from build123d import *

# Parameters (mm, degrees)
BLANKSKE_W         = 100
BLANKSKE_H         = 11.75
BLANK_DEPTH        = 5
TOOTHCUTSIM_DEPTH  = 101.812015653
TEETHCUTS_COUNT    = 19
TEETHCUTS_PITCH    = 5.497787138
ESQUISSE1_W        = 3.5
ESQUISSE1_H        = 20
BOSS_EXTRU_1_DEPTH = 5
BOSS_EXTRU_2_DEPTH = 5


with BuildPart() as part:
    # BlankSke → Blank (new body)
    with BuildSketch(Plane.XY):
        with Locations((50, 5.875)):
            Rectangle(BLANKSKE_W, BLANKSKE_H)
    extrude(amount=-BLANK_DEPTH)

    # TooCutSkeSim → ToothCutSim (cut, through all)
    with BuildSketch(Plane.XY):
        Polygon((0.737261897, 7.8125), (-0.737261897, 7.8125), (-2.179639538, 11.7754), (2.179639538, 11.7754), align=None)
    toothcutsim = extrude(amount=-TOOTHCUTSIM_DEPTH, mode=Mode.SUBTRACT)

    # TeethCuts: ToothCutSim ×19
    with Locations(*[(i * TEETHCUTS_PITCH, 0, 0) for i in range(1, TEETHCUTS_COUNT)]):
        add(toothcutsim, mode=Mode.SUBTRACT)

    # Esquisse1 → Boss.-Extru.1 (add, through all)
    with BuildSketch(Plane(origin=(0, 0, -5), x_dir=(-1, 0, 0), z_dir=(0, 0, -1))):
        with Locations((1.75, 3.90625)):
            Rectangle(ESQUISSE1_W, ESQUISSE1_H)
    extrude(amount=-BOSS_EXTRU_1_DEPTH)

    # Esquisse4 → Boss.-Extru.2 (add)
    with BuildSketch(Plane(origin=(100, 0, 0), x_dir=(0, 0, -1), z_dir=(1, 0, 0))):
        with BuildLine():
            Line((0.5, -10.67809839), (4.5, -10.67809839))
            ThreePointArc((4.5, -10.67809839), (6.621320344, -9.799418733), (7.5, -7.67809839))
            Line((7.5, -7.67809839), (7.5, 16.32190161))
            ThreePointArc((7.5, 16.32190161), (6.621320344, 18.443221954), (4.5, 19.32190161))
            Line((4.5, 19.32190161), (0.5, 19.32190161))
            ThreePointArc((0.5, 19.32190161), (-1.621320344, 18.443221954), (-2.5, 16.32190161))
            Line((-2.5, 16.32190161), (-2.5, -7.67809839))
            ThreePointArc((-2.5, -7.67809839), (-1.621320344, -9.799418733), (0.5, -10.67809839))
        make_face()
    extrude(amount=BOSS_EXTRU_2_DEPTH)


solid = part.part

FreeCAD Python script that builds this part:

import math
import FreeCAD as App
import Part
import Sketcher

V = App.Vector
Q = App.Units.Quantity

doc = App.newDocument("Part")
body = doc.addObject("PartDesign::Body", "Body")

# Sketch on XY plane
sketch1 = body.newObject("Sketcher::SketchObject", "Sketch")
sketch1.AttachmentSupport = (doc.getObject("XY_Plane"), [""])
sketch1.MapMode = "FlatFace"
sketch1.addGeometry(Part.LineSegment(V(0, 12, 0), V(0, 0, 0)), False)
sketch1.addGeometry(Part.LineSegment(V(0, 0, 0), V(100, 0, 0)), False)
sketch1.addGeometry(Part.LineSegment(V(100, 0, 0), V(100, 12, 0)), False)
sketch1.addGeometry(Part.LineSegment(V(100, 12, 0), V(0, 12, 0)), False)
sketch1.addConstraint(Sketcher.Constraint("Coincident", 0, 2, 1, 1))
sketch1.addConstraint(Sketcher.Constraint("Coincident", 1, 2, 2, 1))
sketch1.addConstraint(Sketcher.Constraint("Coincident", 2, 2, 3, 1))
sketch1.addConstraint(Sketcher.Constraint("Coincident", 3, 2, 0, 1))
sketch1.addConstraint(Sketcher.Constraint("Vertical", 0))
sketch1.addConstraint(Sketcher.Constraint("Horizontal", 1))
sketch1.addConstraint(Sketcher.Constraint("Vertical", 2))
sketch1.addConstraint(Sketcher.Constraint("Horizontal", 3))
sketch1.addConstraint(Sketcher.Constraint("Coincident", 0, 2, -1, 1))
sketch1.addConstraint(Sketcher.Constraint("DistanceX", 1, 1, 1, 2, Q("100 mm")))
sketch1.addConstraint(Sketcher.Constraint("DistanceY", 0, 2, 0, 1, Q("11.75 mm")))
pad1 = body.newObject("PartDesign::Pad", "Pad")
pad1.Profile = sketch1
pad1.Length = 5
pad1.Reversed = True

# Sketch on XY plane
sketch2 = body.newObject("Sketcher::SketchObject", "Sketch001")
sketch2.AttachmentSupport = (doc.getObject("XY_Plane"), [""])
sketch2.MapMode = "FlatFace"
sketch2.addGeometry(Part.LineSegment(V(-0.7, 7.8, 0), V(0.7, 7.8, 0)), False)
sketch2.addGeometry(Part.LineSegment(V(0.7, 7.8, 0), V(2.2, 11.8, 0)), False)
sketch2.addGeometry(Part.LineSegment(V(2.2, 11.8, 0), V(-2.2, 11.8, 0)), False)
sketch2.addGeometry(Part.LineSegment(V(-2.2, 11.8, 0), V(-0.7, 7.8, 0)), False)
sketch2.addConstraint(Sketcher.Constraint("Coincident", 0, 2, 1, 1))
sketch2.addConstraint(Sketcher.Constraint("Coincident", 1, 2, 2, 1))
sketch2.addConstraint(Sketcher.Constraint("Coincident", 2, 2, 3, 1))
sketch2.addConstraint(Sketcher.Constraint("Coincident", 3, 2, 0, 1))
sketch2.addConstraint(Sketcher.Constraint("Horizontal", 0))
sketch2.addConstraint(Sketcher.Constraint("Horizontal", 2))
sketch2.addConstraint(Sketcher.Constraint("Equal", 1, 3))
sketch2.addConstraint(Sketcher.Constraint("Angle", 1, Q("70 deg")))
sketch2.addConstraint(Sketcher.Constraint("DistanceX", 2, 2, 2, 1, Q("4.359279 mm")))
sketch2.addConstraint(Sketcher.Constraint("DistanceY", -1, 1, 0, 2, Q("7.8125 mm")))
sketch2.addConstraint(Sketcher.Constraint("DistanceY", -1, 1, 1, 2, Q("11.7754 mm")))
sketch2.addConstraint(Sketcher.Constraint("DistanceX", -1, 1, 0, 2, Q("0.737262 mm")))
pocket1 = body.newObject("PartDesign::Pocket", "Pocket")
pocket1.Profile = sketch2
pocket1.Type = "ThroughAll"
doc.recompute()

linearpattern = body.newObject("PartDesign::LinearPattern", "LinearPattern")
linearpattern.Originals = [pocket1]
linearpattern.Direction = (doc.getObject("X_Axis"), [""])
linearpattern.Mode = "offset"
linearpattern.Offset = 5.497787
linearpattern.Occurrences = 19
body.Tip = linearpattern

# Sketch on XY plane
sketch3 = body.newObject("Sketcher::SketchObject", "Sketch002")
sketch3.AttachmentSupport = (doc.getObject("XY_Plane"), [""])
sketch3.MapMode = "FlatFace"
sketch3.AttachmentOffset = App.Placement(V(0, 0, -5), App.Rotation())
sketch3.addGeometry(Part.LineSegment(V(0, 13.9, 0), V(0, -6.1, 0)), False)
sketch3.addGeometry(Part.LineSegment(V(0, -6.1, 0), V(-3.5, -6.1, 0)), False)
sketch3.addGeometry(Part.LineSegment(V(-3.5, -6.1, 0), V(-3.5, 13.9, 0)), False)
sketch3.addGeometry(Part.LineSegment(V(-3.5, 13.9, 0), V(0, 13.9, 0)), False)
sketch3.addConstraint(Sketcher.Constraint("Coincident", 0, 2, 1, 1))
sketch3.addConstraint(Sketcher.Constraint("Coincident", 1, 2, 2, 1))
sketch3.addConstraint(Sketcher.Constraint("Coincident", 2, 2, 3, 1))
sketch3.addConstraint(Sketcher.Constraint("Coincident", 3, 2, 0, 1))
sketch3.addConstraint(Sketcher.Constraint("Vertical", 0))
sketch3.addConstraint(Sketcher.Constraint("Horizontal", 1))
sketch3.addConstraint(Sketcher.Constraint("Vertical", 2))
sketch3.addConstraint(Sketcher.Constraint("Horizontal", 3))
sketch3.addConstraint(Sketcher.Constraint("PointOnObject", 0, 2, -2))
sketch3.addConstraint(Sketcher.Constraint("DistanceY", 0, 2, 0, 1, Q("20 mm")))
sketch3.addConstraint(Sketcher.Constraint("DistanceX", 1, 2, 1, 1, Q("3.5 mm")))
sketch3.addConstraint(Sketcher.Constraint("DistanceY", 0, 2, -1, 1, Q("6.09375 mm")))
pad2 = body.newObject("PartDesign::Pad", "Pad001")
pad2.Profile = sketch3
pad2.Length = 5

# Sketch on YZ plane
sketch4 = body.newObject("Sketcher::SketchObject", "Sketch003")
sketch4.AttachmentSupport = (doc.getObject("YZ_Plane"), [""])
sketch4.MapMode = "FlatFace"
sketch4.AttachmentOffset = App.Placement(V(0, 0, 100), App.Rotation())
sketch4.addGeometry(Part.LineSegment(V(-10.7, -0.5, 0), V(-10.7, -4.5, 0)), False)
sketch4.addGeometry(Part.ArcOfCircle(Part.Circle(V(-7.7, -4.5, 0), V(0, 0, 1), 3), math.radians(180), math.radians(270)), False)
sketch4.addGeometry(Part.LineSegment(V(-7.7, -7.5, 0), V(16.3, -7.5, 0)), False)
sketch4.addGeometry(Part.ArcOfCircle(Part.Circle(V(16.3, -4.5, 0), V(0, 0, 1), 3), math.radians(-90), math.radians(0)), False)
sketch4.addGeometry(Part.LineSegment(V(19.3, -4.5, 0), V(19.3, -0.5, 0)), False)
sketch4.addGeometry(Part.ArcOfCircle(Part.Circle(V(16.3, -0.5, 0), V(0, 0, 1), 3), math.radians(0), math.radians(90)), False)
sketch4.addGeometry(Part.LineSegment(V(16.3, 2.5, 0), V(-7.7, 2.5, 0)), False)
sketch4.addGeometry(Part.ArcOfCircle(Part.Circle(V(-7.7, -0.5, 0), V(0, 0, 1), 3), math.radians(90), math.radians(180)), False)
sketch4.addConstraint(Sketcher.Constraint("Tangent", 0, 2, 1, 1))
sketch4.addConstraint(Sketcher.Constraint("Tangent", 1, 2, 2, 1))
sketch4.addConstraint(Sketcher.Constraint("Tangent", 2, 2, 3, 1))
sketch4.addConstraint(Sketcher.Constraint("Tangent", 3, 2, 4, 1))
sketch4.addConstraint(Sketcher.Constraint("Tangent", 4, 2, 5, 1))
sketch4.addConstraint(Sketcher.Constraint("Tangent", 5, 2, 6, 1))
sketch4.addConstraint(Sketcher.Constraint("Tangent", 6, 2, 7, 1))
sketch4.addConstraint(Sketcher.Constraint("Tangent", 7, 2, 0, 1))
sketch4.addConstraint(Sketcher.Constraint("Vertical", 0))
sketch4.addConstraint(Sketcher.Constraint("Horizontal", 2))
sketch4.addConstraint(Sketcher.Constraint("Vertical", 4))
sketch4.addConstraint(Sketcher.Constraint("Horizontal", 6))
sketch4.addConstraint(Sketcher.Constraint("Equal", 1, 3))
sketch4.addConstraint(Sketcher.Constraint("Equal", 3, 5))
sketch4.addConstraint(Sketcher.Constraint("Equal", 5, 7))
sketch4.addConstraint(Sketcher.Constraint("Radius", 1, Q("3 mm")))
sketch4.addConstraint(Sketcher.Constraint("DistanceX", 2, 1, 2, 2, Q("24 mm")))
sketch4.addConstraint(Sketcher.Constraint("DistanceY", 0, 2, 0, 1, Q("4 mm")))
sketch4.addConstraint(Sketcher.Constraint("DistanceY", 1, 3, -1, 1, Q("4.5 mm")))
sketch4.addConstraint(Sketcher.Constraint("DistanceX", 1, 3, -1, 1, Q("7.678098 mm")))
pad3 = body.newObject("PartDesign::Pad", "Pad002")
pad3.Profile = sketch4
pad3.Length = 5

doc.recompute()
